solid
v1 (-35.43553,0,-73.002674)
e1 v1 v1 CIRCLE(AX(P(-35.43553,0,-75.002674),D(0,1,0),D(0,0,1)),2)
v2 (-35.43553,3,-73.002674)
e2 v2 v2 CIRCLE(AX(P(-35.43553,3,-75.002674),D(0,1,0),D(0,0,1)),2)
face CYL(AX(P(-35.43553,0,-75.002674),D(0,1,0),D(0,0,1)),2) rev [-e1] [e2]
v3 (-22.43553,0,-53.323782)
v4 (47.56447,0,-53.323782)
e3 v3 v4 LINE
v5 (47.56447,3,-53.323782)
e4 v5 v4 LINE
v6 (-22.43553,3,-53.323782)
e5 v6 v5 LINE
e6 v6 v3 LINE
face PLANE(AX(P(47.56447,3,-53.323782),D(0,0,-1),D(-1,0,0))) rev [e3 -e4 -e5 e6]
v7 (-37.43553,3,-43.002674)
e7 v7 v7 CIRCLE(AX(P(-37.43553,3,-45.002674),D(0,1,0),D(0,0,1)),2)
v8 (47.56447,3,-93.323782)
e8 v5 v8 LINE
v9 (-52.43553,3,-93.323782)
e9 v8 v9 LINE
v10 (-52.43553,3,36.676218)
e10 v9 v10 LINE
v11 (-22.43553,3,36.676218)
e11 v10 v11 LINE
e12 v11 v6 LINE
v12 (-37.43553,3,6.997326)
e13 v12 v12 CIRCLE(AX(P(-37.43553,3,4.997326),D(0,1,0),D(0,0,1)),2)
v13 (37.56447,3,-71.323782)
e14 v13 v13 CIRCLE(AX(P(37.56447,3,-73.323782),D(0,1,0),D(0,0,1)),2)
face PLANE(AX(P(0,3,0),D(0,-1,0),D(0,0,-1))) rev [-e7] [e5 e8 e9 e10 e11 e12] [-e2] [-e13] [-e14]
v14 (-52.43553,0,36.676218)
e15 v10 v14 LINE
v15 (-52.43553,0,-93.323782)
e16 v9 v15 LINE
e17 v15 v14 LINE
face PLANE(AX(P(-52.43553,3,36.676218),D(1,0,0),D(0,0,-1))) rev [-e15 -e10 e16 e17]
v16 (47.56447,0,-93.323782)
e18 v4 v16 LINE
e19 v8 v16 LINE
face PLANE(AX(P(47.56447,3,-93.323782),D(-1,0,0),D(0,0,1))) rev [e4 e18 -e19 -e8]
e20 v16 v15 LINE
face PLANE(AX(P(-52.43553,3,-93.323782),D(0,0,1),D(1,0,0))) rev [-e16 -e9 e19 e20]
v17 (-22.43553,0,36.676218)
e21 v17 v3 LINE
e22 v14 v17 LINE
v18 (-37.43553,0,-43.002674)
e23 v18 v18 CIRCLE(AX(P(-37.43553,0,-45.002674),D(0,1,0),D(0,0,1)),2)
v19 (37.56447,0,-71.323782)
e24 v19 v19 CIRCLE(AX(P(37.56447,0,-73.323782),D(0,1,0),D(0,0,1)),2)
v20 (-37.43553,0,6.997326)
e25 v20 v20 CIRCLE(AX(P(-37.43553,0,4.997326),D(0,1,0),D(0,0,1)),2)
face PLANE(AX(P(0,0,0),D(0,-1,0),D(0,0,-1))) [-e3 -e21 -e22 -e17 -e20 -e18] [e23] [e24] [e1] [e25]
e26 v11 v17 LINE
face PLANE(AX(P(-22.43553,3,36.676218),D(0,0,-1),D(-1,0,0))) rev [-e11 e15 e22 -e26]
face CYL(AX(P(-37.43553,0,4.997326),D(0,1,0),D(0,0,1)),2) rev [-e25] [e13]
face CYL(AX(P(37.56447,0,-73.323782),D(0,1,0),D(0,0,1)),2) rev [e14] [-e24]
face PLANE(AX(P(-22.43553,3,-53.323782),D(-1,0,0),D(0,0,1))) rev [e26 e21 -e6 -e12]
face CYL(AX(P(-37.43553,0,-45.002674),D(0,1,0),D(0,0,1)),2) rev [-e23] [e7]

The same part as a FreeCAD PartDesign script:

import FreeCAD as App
import Part
import Sketcher
from FreeCAD import Vector
Q = App.Units.Quantity

doc = App.newDocument("Part")
body = doc.addObject("PartDesign::Body", "Body")

# Sketch on XZ plane
sketch1 = body.newObject("Sketcher::SketchObject", "Sketch")
sketch1.AttachmentSupport = (doc.getObject("XZ_Plane"), [""])
sketch1.MapMode = "FlatFace"
sketch1.addGeometry([
    Part.LineSegment(Vector(-52, 37, 0), Vector(-22, 37, 0)),  # 0
    Part.LineSegment(Vector(-22, 37, 0), Vector(-22, -53, 0)),  # 1
    Part.LineSegment(Vector(-22, -53, 0), Vector(48, -53, 0)),  # 2
    Part.LineSegment(Vector(48, -53, 0), Vector(48, -93, 0)),  # 3
    Part.LineSegment(Vector(48, -93, 0), Vector(-52, -93, 0)),  # 4
    Part.LineSegment(Vector(-52, -93, 0), Vector(-52, 37, 0)),  # 5
], False)
sketch1.addConstraint([
    Sketcher.Constraint("Coincident", 0, 2, 1, 1),
    Sketcher.Constraint("Coincident", 1, 2, 2, 1),
    Sketcher.Constraint("Coincident", 2, 2, 3, 1),
    Sketcher.Constraint("Coincident", 3, 2, 4, 1),
    Sketcher.Constraint("Coincident", 4, 2, 5, 1),
    Sketcher.Constraint("Coincident", 5, 2, 0, 1),
    Sketcher.Constraint("Horizontal", 0),
    Sketcher.Constraint("Vertical", 1),
    Sketcher.Constraint("Horizontal", 2),
    Sketcher.Constraint("Vertical", 3),
    Sketcher.Constraint("Horizontal", 4),
    Sketcher.Constraint("Vertical", 5),
    Sketcher.Constraint("DistanceX", 0, 1, 0, 2, Q("30 mm")),
    Sketcher.Constraint("DistanceX", 2, 1, 2, 2, Q("70 mm")),
    Sketcher.Constraint("DistanceY", 1, 2, 1, 1, Q("90 mm")),
    Sketcher.Constraint("DistanceY", 3, 2, 3, 1, Q("40 mm")),
    Sketcher.Constraint("DistanceX", 0, 2, -1, 1, Q("22.43553 mm")),
    Sketcher.Constraint("DistanceY", -1, 1, 0, 2, Q("36.676218 mm")),
])
pad1 = body.newObject("PartDesign::Pad", "Pad")
pad1.Profile = sketch1
pad1.Length = 3
pad1.Reversed = True

# Sketch on XZ plane
sketch2 = body.newObject("Sketcher::SketchObject", "Sketch001")
sketch2.AttachmentSupport = (doc.getObject("XZ_Plane"), [""])
sketch2.MapMode = "FlatFace"
sketch2.AttachmentOffset = App.Placement(Vector(0, 0, -3), App.Rotation())
sketch2.addGeometry([
    Part.Circle(Vector(37.6, -73.3, 0), Vector(0, 0, 1), 2),
    Part.Circle(Vector(-35.4, -75, 0), Vector(0, 0, 1), 2),
    Part.Circle(Vector(-37.4, -45, 0), Vector(0, 0, 1), 2),
    Part.Circle(Vector(-37.4, 5, 0), Vector(0, 0, 1), 2),
], False)
sketch2.addConstraint([
    Sketcher.Constraint("Equal", 0, 1),
    Sketcher.Constraint("Equal", 1, 2),
    Sketcher.Constraint("Equal", 2, 3),
    Sketcher.Constraint("Vertical", 2, 3, 3, 3),
    Sketcher.Constraint("Diameter", 0, Q("4 mm")),
    Sketcher.Constraint("DistanceX", 1, 3, 0, 3, Q("73 mm")),
    Sketcher.Constraint("DistanceX", 2, 3, 1, 3, Q("2 mm")),
    Sketcher.Constraint("DistanceY", 1, 3, 2, 3, Q("30 mm")),
    Sketcher.Constraint("DistanceY", 2, 3, 3, 3, Q("50 mm")),
    Sketcher.Constraint("DistanceX", -1, 1, 0, 3, Q("37.56447 mm")),
    Sketcher.Constraint("DistanceY", 1, 3, 0, 3, Q("1.678891 mm")),
    Sketcher.Constraint("DistanceY", 0, 3, -1, 1, Q("73.323782 mm")),
])
pad2 = body.newObject("PartDesign::Pad", "Pad001")
pad2.Profile = sketch2
pad2.Length = 3

# Sketch on XZ plane
sketch3 = body.newObject("Sketcher::SketchObject", "Sketch002")
sketch3.AttachmentSupport = (doc.getObject("XZ_Plane"), [""])
sketch3.MapMode = "FlatFace"
sketch3.AttachmentOffset = App.Placement(Vector(0, 0, -3), App.Rotation())
sketch3.addGeometry([
    Part.Circle(Vector(37.6, -73.3, 0), Vector(0, 0, 1), 2),
    Part.Circle(Vector(-37.4, -45, 0), Vector(0, 0, 1), 2),
    Part.Circle(Vector(-37.4, 5, 0), Vector(0, 0, 1), 2),
    Part.Circle(Vector(-35.4, -75, 0), Vector(0, 0, 1), 2),
], False)
sketch3.addConstraint([
    Sketcher.Constraint("Equal", 0, 1),
    Sketcher.Constraint("Equal", 1, 2),
    Sketcher.Constraint("Equal", 2, 3),
    Sketcher.Constraint("Vertical", 1, 3, 2, 3),
    Sketcher.Constraint("Diameter", 0, Q("4 mm")),
    Sketcher.Constraint("DistanceX", 1, 3, 0, 3, Q("75 mm")),
    Sketcher.Constraint("DistanceY", 1, 3, 2, 3, Q("50 mm")),
    Sketcher.Constraint("DistanceX", 1, 3, 3, 3, Q("2 mm")),
    Sketcher.Constraint("DistanceY", 3, 3, 1, 3, Q("30 mm")),
    Sketcher.Constraint("DistanceX", -1, 1, 0, 3, Q("37.56447 mm")),
    Sketcher.Constraint("DistanceY", 0, 3, 1, 3, Q("28.321109 mm")),
    Sketcher.Constraint("DistanceY", 0, 3, -1, 1, Q("73.323782 mm")),
])
pocket1 = body.newObject("PartDesign::Pocket", "Pocket")
pocket1.Profile = sketch3
pocket1.Type = "ThroughAll"
pocket1.Reversed = True

doc.recompute()
